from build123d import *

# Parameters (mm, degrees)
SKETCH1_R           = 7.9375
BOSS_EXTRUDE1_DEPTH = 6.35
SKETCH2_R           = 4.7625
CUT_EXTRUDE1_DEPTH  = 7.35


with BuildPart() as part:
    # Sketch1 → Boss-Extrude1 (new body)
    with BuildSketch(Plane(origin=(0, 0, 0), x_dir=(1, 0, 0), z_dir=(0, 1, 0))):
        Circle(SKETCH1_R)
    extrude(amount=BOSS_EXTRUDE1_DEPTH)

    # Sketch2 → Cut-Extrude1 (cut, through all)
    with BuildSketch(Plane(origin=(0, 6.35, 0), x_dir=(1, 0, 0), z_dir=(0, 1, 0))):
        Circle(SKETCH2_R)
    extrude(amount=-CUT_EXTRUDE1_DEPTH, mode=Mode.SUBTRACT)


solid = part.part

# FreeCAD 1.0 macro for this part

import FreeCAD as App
import Part
import Sketcher
from FreeCAD import Vector
Q = App.Units.Quantity

doc = App.newDocument("Part")
body = doc.addObject("PartDesign::Body", "Body")

sketch1 = body.newObject("Sketcher::SketchObject", "Sketch")
sketch1.AttachmentSupport = (doc.getObject("XZ_Plane"), [""])
sketch1.MapMode = "FlatFace"
sketch1.addGeometry(Part.Circle(Vector(0, 0, 0), Vector(0, 0, 1), 7.9375), False)
sketch1.addConstraint(Sketcher.Constraint("Coincident", 0, 3, -1, 1))
sketch1.addConstraint(Sketcher.Constraint("Diameter", 0, Q("0.625 in")))
pad1 = body.newObject("PartDesign::Pad", "Pad")
pad1.Profile = sketch1
pad1.Length = Q("0.25 in")
pad1.Reversed = True

sketch2 = body.newObject("Sketcher::SketchObject", "Sketch001")
sketch2.AttachmentSupport = (doc.getObject("XZ_Plane"), [""])
sketch2.MapMode = "FlatFace"
sketch2.AttachmentOffset = App.Placement(Vector(0, 0, -0.25 * 25.4), App.Rotation())
sketch2.addGeometry(Part.Circle(Vector(0, 0, 0), Vector(0, 0, 1), 4.7625), False)
sketch2.addConstraint(Sketcher.Constraint("Coincident", 0, 3, -1, 1))
sketch2.addConstraint(Sketcher.Constraint("Diameter", 0, Q("0.375 in")))
pocket1 = body.newObject("PartDesign::Pocket", "Pocket")
pocket1.Profile = sketch2
pocket1.Type = "ThroughAll"
pocket1.Reversed = True

doc.recompute()
